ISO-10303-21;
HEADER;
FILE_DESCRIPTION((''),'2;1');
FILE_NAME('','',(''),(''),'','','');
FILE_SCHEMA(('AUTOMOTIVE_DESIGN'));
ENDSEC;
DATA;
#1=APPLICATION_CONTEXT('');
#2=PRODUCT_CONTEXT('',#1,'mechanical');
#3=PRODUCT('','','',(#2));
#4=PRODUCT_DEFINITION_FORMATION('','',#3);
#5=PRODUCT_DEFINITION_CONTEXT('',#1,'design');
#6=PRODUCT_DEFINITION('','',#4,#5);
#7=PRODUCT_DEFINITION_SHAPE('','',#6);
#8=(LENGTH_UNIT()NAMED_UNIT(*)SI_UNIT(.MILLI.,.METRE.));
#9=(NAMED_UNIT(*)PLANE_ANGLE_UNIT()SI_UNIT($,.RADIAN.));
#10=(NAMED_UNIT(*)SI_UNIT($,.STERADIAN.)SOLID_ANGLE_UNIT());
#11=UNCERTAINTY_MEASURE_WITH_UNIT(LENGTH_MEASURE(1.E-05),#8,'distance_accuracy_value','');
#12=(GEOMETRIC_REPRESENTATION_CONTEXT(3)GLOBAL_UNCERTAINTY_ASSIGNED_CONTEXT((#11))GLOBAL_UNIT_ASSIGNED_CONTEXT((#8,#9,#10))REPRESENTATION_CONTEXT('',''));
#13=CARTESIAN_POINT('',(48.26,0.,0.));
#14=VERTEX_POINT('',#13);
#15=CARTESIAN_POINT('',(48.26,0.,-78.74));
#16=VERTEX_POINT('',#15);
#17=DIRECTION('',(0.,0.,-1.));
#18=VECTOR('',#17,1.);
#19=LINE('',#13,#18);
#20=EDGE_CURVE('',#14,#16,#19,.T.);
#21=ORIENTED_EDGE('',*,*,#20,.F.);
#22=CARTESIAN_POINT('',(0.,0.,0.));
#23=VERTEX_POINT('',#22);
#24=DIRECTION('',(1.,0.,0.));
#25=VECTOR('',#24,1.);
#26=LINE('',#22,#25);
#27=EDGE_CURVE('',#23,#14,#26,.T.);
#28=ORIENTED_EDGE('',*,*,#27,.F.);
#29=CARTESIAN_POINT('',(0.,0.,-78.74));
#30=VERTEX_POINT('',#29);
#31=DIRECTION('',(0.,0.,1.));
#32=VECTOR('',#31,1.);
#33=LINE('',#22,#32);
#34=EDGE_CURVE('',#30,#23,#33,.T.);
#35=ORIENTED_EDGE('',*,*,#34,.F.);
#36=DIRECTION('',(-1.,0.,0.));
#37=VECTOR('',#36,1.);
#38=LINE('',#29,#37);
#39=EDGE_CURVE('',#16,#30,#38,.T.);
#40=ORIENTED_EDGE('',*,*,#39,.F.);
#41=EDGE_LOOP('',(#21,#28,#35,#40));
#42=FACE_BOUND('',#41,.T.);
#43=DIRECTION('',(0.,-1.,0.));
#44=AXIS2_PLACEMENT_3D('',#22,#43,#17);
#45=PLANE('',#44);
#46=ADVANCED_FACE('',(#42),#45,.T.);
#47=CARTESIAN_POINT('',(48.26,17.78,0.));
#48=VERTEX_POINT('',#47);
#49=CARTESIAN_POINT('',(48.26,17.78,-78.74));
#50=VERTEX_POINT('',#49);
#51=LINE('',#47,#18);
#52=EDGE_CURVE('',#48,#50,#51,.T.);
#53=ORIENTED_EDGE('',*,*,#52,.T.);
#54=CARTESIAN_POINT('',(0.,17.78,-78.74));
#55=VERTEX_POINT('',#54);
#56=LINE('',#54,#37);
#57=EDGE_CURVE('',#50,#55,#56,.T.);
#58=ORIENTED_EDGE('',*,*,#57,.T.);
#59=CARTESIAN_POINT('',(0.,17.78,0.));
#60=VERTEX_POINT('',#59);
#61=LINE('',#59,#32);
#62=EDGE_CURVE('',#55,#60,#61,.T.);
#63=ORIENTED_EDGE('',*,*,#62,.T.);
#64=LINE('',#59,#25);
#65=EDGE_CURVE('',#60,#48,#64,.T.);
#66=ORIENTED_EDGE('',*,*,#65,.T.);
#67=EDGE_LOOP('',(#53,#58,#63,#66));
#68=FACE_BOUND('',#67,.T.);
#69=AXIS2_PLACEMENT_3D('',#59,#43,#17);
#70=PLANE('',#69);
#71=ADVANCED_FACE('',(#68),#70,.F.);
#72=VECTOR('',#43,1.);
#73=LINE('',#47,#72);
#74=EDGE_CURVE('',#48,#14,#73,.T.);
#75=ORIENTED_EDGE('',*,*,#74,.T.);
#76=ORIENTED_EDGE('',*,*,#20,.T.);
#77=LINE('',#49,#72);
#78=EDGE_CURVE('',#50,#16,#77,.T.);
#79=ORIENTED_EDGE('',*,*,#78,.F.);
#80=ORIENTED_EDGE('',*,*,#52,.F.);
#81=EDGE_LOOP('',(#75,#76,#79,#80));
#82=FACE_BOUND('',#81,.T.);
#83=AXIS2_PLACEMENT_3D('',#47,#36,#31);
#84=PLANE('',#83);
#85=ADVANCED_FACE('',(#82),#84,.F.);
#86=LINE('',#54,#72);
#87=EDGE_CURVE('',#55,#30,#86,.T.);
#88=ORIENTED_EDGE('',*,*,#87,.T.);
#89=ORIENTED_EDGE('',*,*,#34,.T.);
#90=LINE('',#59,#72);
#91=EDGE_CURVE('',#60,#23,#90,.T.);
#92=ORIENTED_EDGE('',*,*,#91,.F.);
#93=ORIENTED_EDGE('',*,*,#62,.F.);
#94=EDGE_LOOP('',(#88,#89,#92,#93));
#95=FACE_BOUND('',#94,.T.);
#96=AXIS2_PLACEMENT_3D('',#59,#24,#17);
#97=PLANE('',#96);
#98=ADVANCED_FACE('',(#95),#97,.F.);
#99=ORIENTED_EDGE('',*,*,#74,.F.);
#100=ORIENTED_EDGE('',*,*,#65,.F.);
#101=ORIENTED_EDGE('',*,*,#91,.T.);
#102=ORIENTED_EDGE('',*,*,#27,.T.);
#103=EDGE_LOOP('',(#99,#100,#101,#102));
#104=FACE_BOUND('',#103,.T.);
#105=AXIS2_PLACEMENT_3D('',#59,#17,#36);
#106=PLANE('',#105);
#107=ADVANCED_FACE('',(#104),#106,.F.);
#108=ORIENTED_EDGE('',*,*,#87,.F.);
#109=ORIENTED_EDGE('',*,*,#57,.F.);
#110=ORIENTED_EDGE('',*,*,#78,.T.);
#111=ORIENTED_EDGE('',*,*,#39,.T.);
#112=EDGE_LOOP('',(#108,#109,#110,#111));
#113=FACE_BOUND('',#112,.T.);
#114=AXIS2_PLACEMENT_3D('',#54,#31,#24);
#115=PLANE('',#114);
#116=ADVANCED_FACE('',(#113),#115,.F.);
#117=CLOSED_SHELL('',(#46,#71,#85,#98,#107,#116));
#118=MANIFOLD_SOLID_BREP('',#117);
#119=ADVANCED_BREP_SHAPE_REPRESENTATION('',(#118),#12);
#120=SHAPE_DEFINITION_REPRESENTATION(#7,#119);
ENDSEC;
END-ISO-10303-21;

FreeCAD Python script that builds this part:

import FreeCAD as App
import Part
import Sketcher

V = App.Vector
Q = App.Units.Quantity


def add_polygon(sketch, points):
    """Adds a closed chain of lines whose ends are joined by coincident constraints."""
    first, n = sketch.GeometryCount, len(points)
    for a, b in zip(points, points[1:] + points[:1]):
        sketch.addGeometry(Part.LineSegment(App.Vector(*a, 0), App.Vector(*b, 0)), False)
    for i in range(n):
        sketch.addConstraint(Sketcher.Constraint("Coincident", first + i, 2, first + (i + 1) % n, 1))

doc = App.newDocument("Part")
body = doc.addObject("PartDesign::Body", "Body")

# Sketch on XZ plane
sketch1 = body.newObject("Sketcher::SketchObject", "Sketch")
sketch1.AttachmentSupport = (doc.getObject("XZ_Plane"), [""])
sketch1.MapMode = "FlatFace"
add_polygon(sketch1, [(0, -78.74), (0, 0), (48.26, 0), (48.26, -78.74)])  # lines 0-3
sketch1.addConstraint(Sketcher.Constraint("Vertical", 0))
sketch1.addConstraint(Sketcher.Constraint("Horizontal", 1))
sketch1.addConstraint(Sketcher.Constraint("Vertical", 2))
sketch1.addConstraint(Sketcher.Constraint("Horizontal", 3))
sketch1.addConstraint(Sketcher.Constraint("Coincident", 0, 2, -1, 1))
sketch1.addConstraint(Sketcher.Constraint("DistanceX", 1, 1, 1, 2, Q("1.9 in")))
sketch1.addConstraint(Sketcher.Constraint("DistanceY", 0, 1, 0, 2, Q("3.1 in")))
pad1 = body.newObject("PartDesign::Pad", "Pad")
pad1.Profile = sketch1
pad1.Length = Q("0.7 in")
pad1.Reversed = True

doc.recompute()
